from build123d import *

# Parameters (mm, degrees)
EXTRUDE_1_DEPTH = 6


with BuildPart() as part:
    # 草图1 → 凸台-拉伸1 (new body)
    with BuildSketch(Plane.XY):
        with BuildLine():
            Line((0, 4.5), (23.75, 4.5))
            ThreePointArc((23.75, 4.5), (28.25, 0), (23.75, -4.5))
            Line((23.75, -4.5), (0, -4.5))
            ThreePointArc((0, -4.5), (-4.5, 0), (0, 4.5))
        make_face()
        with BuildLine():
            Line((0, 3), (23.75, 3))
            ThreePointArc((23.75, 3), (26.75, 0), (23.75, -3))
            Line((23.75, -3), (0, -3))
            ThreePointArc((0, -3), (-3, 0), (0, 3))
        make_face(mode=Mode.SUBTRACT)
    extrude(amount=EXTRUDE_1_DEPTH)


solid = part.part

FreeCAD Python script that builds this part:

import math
import FreeCAD as App
import Part
import Sketcher

V = App.Vector

doc = App.newDocument("Part")
body = doc.addObject("PartDesign::Body", "Body")

# Sketch on XY plane
sketch1 = body.newObject("Sketcher::SketchObject", "Sketch")
sketch1.AttachmentSupport = (doc.getObject("XY_Plane"), [""])
sketch1.MapMode = "FlatFace"
sketch1.addGeometry(Part.LineSegment(V(23.75, 4.5, 0), V(0, 4.5, 0)), False)
sketch1.addGeometry(Part.ArcOfCircle(Part.Circle(V(0, 0, 0), V(0, 0, 1), 4.5), math.radians(90), math.radians(270)), False)
sketch1.addGeometry(Part.LineSegment(V(0, -4.5, 0), V(23.75, -4.5, 0)), False)
sketch1.addGeometry(Part.ArcOfCircle(Part.Circle(V(23.75, 0, 0), V(0, 0, 1), 4.5), math.radians(-90), math.radians(90)), False)
sketch1.addGeometry(Part.LineSegment(V(0, 3, 0), V(23.75, 3, 0)), False)
sketch1.addGeometry(Part.ArcOfCircle(Part.Circle(V(23.75, 0, 0), V(0, 0, 1), 3), math.radians(-90), math.radians(90)), False)
sketch1.addGeometry(Part.LineSegment(V(23.75, -3, 0), V(0, -3, 0)), False)
sketch1.addGeometry(Part.ArcOfCircle(Part.Circle(V(0, 0, 0), V(0, 0, 1), 3), math.radians(90), math.radians(270)), False)
sketch1.addConstraint(Sketcher.Constraint("Tangent", 0, 2, 1, 1))
sketch1.addConstraint(Sketcher.Constraint("Tangent", 1, 2, 2, 1))
sketch1.addConstraint(Sketcher.Constraint("Tangent", 2, 2, 3, 1))
sketch1.addConstraint(Sketcher.Constraint("Tangent", 3, 2, 0, 1))
sketch1.addConstraint(Sketcher.Constraint("Tangent", 4, 2, 5, 2))
sketch1.addConstraint(Sketcher.Constraint("Tangent", 5, 1, 6, 1))
sketch1.addConstraint(Sketcher.Constraint("Tangent", 6, 2, 7, 2))
sketch1.addConstraint(Sketcher.Constraint("Tangent", 7, 1, 4, 1))
sketch1.addConstraint(Sketcher.Constraint("Horizontal", 0))
sketch1.addConstraint(Sketcher.Constraint("Horizontal", 2))
sketch1.addConstraint(Sketcher.Constraint("Horizontal", 4))
sketch1.addConstraint(Sketcher.Constraint("Horizontal", 6))
sketch1.addConstraint(Sketcher.Constraint("Coincident", 1, 3, -1, 1))
sketch1.addConstraint(Sketcher.Constraint("Coincident", 7, 3, -1, 1))
sketch1.addConstraint(Sketcher.Constraint("Vertical", 5, 3, 2, 2))
sketch1.addConstraint(Sketcher.Constraint("Radius", 5, 3.0))
sketch1.addConstraint(Sketcher.Constraint("Radius", 1, 4.5))
sketch1.addConstraint(Sketcher.Constraint("DistanceX", 0, 2, 0, 1, 23.75))
pad1 = body.newObject("PartDesign::Pad", "Pad")
pad1.Profile = sketch1
pad1.Length = 6

doc.recompute()
